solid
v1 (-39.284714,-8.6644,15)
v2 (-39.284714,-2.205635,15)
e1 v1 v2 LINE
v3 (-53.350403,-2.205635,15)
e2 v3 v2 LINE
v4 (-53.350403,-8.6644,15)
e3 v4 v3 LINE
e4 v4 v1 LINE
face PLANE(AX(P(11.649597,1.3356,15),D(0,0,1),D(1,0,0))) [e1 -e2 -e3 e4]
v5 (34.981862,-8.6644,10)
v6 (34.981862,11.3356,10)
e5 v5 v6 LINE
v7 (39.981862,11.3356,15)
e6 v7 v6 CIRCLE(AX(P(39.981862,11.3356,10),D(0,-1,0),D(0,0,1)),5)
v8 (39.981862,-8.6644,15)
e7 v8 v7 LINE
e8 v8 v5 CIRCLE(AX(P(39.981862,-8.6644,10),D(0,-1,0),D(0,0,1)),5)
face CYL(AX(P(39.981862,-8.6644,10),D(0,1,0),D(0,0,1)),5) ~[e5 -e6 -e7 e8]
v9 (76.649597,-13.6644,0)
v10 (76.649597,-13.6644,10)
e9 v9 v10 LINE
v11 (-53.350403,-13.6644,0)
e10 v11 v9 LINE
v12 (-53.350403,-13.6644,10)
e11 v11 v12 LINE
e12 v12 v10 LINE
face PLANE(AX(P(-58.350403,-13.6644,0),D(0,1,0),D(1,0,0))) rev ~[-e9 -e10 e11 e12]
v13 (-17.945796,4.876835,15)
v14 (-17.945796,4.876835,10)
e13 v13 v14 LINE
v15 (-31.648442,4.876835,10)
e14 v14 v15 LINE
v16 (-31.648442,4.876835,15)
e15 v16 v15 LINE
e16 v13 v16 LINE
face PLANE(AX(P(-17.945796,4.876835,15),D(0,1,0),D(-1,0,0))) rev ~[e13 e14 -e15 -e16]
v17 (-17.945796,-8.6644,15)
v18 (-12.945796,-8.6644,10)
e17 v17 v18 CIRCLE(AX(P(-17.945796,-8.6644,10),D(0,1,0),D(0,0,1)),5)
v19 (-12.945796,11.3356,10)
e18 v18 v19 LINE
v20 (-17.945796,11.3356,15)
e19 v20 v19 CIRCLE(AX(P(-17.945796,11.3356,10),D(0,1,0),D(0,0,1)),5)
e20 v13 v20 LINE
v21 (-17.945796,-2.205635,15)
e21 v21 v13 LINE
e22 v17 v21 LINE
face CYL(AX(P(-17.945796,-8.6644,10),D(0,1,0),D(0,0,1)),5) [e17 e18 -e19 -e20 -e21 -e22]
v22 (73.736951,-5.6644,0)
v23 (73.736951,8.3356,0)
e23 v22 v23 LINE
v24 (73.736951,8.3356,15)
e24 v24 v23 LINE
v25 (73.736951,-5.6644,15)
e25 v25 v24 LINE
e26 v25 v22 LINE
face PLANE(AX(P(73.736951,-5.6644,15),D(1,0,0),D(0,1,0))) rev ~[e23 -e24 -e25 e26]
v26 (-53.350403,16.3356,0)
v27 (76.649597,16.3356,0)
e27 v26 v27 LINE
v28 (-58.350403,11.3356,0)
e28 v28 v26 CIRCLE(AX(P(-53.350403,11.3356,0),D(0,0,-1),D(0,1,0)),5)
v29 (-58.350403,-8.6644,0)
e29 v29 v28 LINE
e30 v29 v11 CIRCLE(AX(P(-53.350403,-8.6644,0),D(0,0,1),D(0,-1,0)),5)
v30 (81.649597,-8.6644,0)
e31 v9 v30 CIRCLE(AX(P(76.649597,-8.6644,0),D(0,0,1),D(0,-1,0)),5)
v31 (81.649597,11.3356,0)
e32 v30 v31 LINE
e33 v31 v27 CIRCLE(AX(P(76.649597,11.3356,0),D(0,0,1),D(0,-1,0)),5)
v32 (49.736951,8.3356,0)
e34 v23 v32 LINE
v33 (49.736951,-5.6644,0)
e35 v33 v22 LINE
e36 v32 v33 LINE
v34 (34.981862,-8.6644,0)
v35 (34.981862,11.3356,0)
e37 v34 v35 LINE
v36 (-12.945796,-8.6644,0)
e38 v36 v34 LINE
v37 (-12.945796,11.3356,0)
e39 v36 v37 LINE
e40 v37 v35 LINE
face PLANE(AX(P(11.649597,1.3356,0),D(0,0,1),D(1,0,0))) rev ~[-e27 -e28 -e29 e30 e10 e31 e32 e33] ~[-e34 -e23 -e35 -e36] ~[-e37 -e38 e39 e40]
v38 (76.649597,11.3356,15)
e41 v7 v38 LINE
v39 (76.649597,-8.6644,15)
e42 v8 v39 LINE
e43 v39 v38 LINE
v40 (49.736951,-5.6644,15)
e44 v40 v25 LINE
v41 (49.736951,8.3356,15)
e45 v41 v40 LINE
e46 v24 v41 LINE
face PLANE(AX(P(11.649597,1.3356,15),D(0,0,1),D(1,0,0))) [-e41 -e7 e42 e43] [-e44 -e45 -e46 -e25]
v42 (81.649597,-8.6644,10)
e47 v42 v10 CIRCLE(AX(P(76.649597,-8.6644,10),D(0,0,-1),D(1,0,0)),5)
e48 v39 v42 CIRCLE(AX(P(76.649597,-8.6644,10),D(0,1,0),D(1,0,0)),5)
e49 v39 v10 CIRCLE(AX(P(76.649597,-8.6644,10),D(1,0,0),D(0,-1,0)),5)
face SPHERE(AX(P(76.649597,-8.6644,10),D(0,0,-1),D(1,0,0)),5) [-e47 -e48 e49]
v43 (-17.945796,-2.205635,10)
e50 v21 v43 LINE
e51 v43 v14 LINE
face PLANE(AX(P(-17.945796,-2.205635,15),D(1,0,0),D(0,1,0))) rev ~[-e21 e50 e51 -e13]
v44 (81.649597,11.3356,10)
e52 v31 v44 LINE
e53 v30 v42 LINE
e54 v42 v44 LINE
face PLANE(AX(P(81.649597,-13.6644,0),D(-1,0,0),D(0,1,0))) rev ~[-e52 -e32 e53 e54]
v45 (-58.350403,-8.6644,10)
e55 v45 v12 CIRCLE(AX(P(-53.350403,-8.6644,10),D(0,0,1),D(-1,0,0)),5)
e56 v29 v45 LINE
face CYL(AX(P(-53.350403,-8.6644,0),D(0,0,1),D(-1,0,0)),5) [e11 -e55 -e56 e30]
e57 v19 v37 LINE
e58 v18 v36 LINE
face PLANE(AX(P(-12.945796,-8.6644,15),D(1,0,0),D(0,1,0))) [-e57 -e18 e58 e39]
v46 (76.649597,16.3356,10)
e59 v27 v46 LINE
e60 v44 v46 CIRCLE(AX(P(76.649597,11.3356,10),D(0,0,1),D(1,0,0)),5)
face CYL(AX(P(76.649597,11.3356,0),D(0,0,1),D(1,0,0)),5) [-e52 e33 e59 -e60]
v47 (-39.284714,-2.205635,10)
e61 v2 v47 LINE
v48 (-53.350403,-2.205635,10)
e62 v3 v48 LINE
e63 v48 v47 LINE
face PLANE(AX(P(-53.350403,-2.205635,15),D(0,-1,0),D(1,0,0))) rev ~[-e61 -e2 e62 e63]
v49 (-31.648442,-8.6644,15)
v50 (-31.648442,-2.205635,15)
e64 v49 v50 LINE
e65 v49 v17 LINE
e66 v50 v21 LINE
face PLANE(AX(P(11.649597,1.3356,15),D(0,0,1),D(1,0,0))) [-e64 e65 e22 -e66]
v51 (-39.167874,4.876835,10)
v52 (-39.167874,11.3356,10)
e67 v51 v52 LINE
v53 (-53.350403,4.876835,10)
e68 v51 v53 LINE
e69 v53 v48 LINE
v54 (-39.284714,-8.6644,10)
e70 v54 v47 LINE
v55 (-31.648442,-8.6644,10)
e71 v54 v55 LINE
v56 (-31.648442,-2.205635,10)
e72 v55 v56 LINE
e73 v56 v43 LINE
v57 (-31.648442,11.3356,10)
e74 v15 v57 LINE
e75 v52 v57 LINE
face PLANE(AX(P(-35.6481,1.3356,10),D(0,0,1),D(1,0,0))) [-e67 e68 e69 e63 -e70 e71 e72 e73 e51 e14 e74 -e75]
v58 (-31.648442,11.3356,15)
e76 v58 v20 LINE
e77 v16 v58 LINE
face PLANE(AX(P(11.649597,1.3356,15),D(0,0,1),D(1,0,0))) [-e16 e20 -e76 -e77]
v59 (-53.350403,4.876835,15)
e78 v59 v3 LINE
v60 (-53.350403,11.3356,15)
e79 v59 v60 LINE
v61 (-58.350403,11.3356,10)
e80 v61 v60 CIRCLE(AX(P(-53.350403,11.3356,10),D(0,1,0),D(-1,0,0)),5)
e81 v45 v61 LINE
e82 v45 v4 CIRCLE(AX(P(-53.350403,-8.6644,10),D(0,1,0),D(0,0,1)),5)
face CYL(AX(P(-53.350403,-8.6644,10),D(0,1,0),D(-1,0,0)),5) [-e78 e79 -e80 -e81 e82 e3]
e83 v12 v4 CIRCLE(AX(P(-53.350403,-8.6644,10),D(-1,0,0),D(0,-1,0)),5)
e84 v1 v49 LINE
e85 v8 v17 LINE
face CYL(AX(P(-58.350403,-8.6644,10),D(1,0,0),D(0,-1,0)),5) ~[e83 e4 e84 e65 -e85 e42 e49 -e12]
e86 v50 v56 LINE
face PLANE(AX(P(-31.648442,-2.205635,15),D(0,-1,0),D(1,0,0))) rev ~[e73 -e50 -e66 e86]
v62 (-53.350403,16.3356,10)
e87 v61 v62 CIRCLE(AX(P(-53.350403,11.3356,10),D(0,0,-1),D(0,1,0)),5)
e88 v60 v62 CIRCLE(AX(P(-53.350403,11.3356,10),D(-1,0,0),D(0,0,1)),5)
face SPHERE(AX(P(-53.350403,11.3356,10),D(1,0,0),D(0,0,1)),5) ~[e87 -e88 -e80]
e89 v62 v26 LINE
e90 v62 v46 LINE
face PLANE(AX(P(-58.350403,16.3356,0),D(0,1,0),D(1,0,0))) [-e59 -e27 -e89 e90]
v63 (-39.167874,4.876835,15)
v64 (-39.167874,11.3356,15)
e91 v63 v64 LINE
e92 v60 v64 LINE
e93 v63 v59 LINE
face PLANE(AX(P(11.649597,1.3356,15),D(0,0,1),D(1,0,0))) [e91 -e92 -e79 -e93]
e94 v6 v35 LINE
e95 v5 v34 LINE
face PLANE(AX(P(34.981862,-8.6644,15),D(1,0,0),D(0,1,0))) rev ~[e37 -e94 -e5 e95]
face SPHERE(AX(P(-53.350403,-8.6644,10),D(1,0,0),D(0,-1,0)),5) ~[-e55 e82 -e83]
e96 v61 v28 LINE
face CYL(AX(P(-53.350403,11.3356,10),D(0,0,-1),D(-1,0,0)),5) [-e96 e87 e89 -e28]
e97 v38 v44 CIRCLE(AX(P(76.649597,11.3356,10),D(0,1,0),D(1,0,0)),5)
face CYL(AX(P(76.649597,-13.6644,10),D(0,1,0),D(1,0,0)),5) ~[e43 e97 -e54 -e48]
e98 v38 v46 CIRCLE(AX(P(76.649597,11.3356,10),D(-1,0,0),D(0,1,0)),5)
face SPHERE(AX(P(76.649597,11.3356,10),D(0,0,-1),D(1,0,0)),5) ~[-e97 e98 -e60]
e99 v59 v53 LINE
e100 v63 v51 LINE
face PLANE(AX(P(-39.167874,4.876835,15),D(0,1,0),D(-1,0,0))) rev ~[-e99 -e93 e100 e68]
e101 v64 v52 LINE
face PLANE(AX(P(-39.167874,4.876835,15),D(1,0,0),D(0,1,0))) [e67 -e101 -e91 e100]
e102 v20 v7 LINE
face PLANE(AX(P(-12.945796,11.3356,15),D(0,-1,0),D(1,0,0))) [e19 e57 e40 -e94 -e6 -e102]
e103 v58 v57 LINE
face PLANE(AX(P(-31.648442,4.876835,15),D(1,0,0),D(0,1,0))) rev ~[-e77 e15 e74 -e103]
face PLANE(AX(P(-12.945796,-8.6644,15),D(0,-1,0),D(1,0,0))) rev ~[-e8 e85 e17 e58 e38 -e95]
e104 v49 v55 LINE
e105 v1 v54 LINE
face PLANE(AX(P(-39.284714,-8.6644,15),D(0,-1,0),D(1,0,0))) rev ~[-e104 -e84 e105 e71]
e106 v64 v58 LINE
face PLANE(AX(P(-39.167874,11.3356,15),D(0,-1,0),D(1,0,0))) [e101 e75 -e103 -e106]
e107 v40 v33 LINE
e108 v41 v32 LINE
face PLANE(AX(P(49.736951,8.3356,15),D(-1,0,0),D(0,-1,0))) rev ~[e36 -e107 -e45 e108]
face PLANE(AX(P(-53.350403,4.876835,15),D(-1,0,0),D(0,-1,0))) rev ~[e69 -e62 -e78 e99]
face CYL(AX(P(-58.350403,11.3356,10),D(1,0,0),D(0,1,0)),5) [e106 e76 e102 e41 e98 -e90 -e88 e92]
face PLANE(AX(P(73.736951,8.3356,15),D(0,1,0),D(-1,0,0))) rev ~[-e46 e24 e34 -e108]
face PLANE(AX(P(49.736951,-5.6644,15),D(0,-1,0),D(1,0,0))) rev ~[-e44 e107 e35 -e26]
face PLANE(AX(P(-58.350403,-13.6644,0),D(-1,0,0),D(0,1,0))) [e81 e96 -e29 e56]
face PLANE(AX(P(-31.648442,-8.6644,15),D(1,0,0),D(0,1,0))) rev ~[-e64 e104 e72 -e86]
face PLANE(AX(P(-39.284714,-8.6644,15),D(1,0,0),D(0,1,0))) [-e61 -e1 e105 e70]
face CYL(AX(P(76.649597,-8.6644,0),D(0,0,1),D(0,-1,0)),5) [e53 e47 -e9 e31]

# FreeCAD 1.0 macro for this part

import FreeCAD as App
import Part
import Sketcher


def edges_at(feature, points):
    """Names of the edges that pass closest to the given points."""
    edges = feature.Shape.Edges
    near = lambda p: min(range(len(edges)), key=lambda i: edges[i].distToShape(Part.Vertex(*p))[0])
    return sorted({f"Edge{near(p) + 1}" for p in points})


def add_polygon(sketch, points):
    """Adds a closed chain of lines whose ends are joined by coincident constraints."""
    first, n = sketch.GeometryCount, len(points)
    for a, b in zip(points, points[1:] + points[:1]):
        sketch.addGeometry(Part.LineSegment(App.Vector(*a, 0), App.Vector(*b, 0)), False)
    for i in range(n):
        sketch.addConstraint(Sketcher.Constraint("Coincident", first + i, 2, first + (i + 1) % n, 1))

doc = App.newDocument("Part")
body = doc.addObject("PartDesign::Body", "Body")

sketch1 = body.newObject("Sketcher::SketchObject", "Sketch")
sketch1.AttachmentSupport = (doc.getObject("XY_Plane"), [""])
sketch1.MapMode = "FlatFace"
add_polygon(sketch1, [(-58.350403, 16.3356), (-58.350403, -13.6644), (81.649597, -13.6644), (81.649597, 16.3356)])
sketch1.addConstraint([
    Sketcher.Constraint("Vertical", 0),
    Sketcher.Constraint("Horizontal", 1),
    Sketcher.Constraint("Vertical", 2),
    Sketcher.Constraint("Horizontal", 3),
    Sketcher.Constraint("DistanceX", 1, 1, 1, 2, 140.0),
    Sketcher.Constraint("DistanceY", 0, 2, 0, 1, 30.0),
    Sketcher.Constraint("DistanceY", 0, 2, -1, 1, 13.6644),
    Sketcher.Constraint("DistanceX", 0, 2, -1, 1, 58.350403),
])
pad1 = body.newObject("PartDesign::Pad", "Pad")
pad1.Profile = sketch1
pad1.Length = 15
doc.recompute()

fillet = body.newObject("PartDesign::Fillet", "Fillet")
fillet.Base = (pad1, edges_at(pad1, [
    (81.65, -13.664, 7.5),
    (81.65, 16.336, 7.5),
    (81.65, 1.336, 15),
    (11.65, -13.664, 15),
    (11.65, 16.336, 15),
]))
fillet.Radius = 5

sketch2 = body.newObject("Sketcher::SketchObject", "Sketch001")
sketch2.AttachmentSupport = (doc.getObject("XY_Plane"), [""])
sketch2.MapMode = "FlatFace"
sketch2.AttachmentOffset = App.Placement(App.Vector(0, 0, 15), App.Rotation())
add_polygon(sketch2, [(-12.945796, 11.3356), (-12.945796, -8.6644), (34.981862, -8.6644), (34.981862, 11.3356)])
sketch2.addConstraint([
    Sketcher.Constraint("Vertical", 0),
    Sketcher.Constraint("Horizontal", 1),
    Sketcher.Constraint("Vertical", 2),
    Sketcher.Constraint("Horizontal", 3),
    Sketcher.Constraint("DistanceY", 0, 2, 0, 1, 20.0),
    Sketcher.Constraint("DistanceX", 1, 1, 1, 2, 47.927658),
    Sketcher.Constraint("DistanceY", 0, 2, -1, 1, 8.6644),
    Sketcher.Constraint("DistanceX", -1, 1, 1, 2, 34.981862),
])
pocket1 = body.newObject("PartDesign::Pocket", "Pocket")
pocket1.Profile = sketch2
pocket1.Length = 25
doc.recompute()

fillet2 = body.newObject("PartDesign::Fillet", "Fillet001")
fillet2.Base = (pocket1, edges_at(pocket1, [(-12.946, 1.336, 15), (34.982, 1.336, 15)]))
fillet2.Radius = 5
doc.recompute()

fillet3 = body.newObject("PartDesign::Fillet", "Fillet002")
fillet3.Base = (fillet2, edges_at(fillet2, [(-58.35, 1.336, 15)]))
fillet3.Radius = 5

sketch3 = body.newObject("Sketcher::SketchObject", "Sketch002")
sketch3.AttachmentSupport = (doc.getObject("XY_Plane"), [""])
sketch3.MapMode = "FlatFace"
sketch3.AttachmentOffset = App.Placement(App.Vector(0, 0, 15), App.Rotation())
add_polygon(sketch3, [(73.736951, 8.3356), (49.736951, 8.3356), (49.736951, -5.6644), (73.736951, -5.6644)])
sketch3.addConstraint([
    Sketcher.Constraint("Horizontal", 0),
    Sketcher.Constraint("Vertical", 1),
    Sketcher.Constraint("Horizontal", 2),
    Sketcher.Constraint("Vertical", 3),
    Sketcher.Constraint("DistanceX", 0, 2, 0, 1, 24.0),
    Sketcher.Constraint("DistanceY", 1, 2, 1, 1, 14.0),
    Sketcher.Constraint("DistanceY", -1, 1, 0, 2, 8.3356),
    Sketcher.Constraint("DistanceX", -1, 1, 0, 2, 49.736951),
])
pocket2 = body.newObject("PartDesign::Pocket", "Pocket001")
pocket2.Profile = sketch3
pocket2.Length = 25

sketch4 = body.newObject("Sketcher::SketchObject", "Sketch003")
sketch4.AttachmentSupport = (doc.getObject("XY_Plane"), [""])
sketch4.MapMode = "FlatFace"
sketch4.AttachmentOffset = App.Placement(App.Vector(0, 0, 15), App.Rotation())
add_polygon(sketch4, [(-53.350403, -2.205635), (-39.284714, -2.205635), (-39.284714, -8.6644), (-31.648442, -8.6644), (-31.648442, -2.205635), (-17.945796, -2.205635), (-17.945796, 4.876835), (-31.648442, 4.876835), (-31.648442, 11.3356), (-39.167874, 11.3356), (-39.167874, 4.876835), (-53.350403, 4.876835)])
sketch4.addConstraint([
    Sketcher.Constraint("Horizontal", 0),
    Sketcher.Constraint("Vertical", 1),
    Sketcher.Constraint("Horizontal", 2),
    Sketcher.Constraint("Vertical", 3),
    Sketcher.Constraint("Horizontal", 4),
    Sketcher.Constraint("Vertical", 5),
    Sketcher.Constraint("Horizontal", 6),
    Sketcher.Constraint("Vertical", 7),
    Sketcher.Constraint("Horizontal", 8),
    Sketcher.Constraint("Vertical", 9),
    Sketcher.Constraint("Horizontal", 10),
    Sketcher.Constraint("Vertical", 11),
    Sketcher.Constraint("Horizontal", 0, 2, 3, 2),
    Sketcher.Constraint("Horizontal", 6, 2, 9, 2),
    Sketcher.Constraint("Vertical", 3, 2, 6, 2),
    Sketcher.Constraint("Equal", 3, 7),
    Sketcher.Constraint("DistanceY", 1, 2, 8, 2, 20.0),
    Sketcher.Constraint("DistanceX", 0, 1, 0, 2, 14.065689),
    Sketcher.Constraint("DistanceX", 2, 1, 2, 2, 7.636271),
    Sketcher.Constraint("DistanceX", 8, 2, 8, 1, 7.519431),
    Sketcher.Constraint("DistanceY", 5, 1, 5, 2, 7.08247),
    Sketcher.Constraint("DistanceY", 1, 2, -1, 1, 8.6644),
    Sketcher.Constraint("DistanceX", 4, 1, 4, 2, 13.702646),
    Sketcher.Constraint("DistanceX", 0, 2, -1, 1, 39.284714),
])
pocket3 = body.newObject("PartDesign::Pocket", "Pocket002")
pocket3.Profile = sketch4
pocket3.Length = 5

doc.recompute()
